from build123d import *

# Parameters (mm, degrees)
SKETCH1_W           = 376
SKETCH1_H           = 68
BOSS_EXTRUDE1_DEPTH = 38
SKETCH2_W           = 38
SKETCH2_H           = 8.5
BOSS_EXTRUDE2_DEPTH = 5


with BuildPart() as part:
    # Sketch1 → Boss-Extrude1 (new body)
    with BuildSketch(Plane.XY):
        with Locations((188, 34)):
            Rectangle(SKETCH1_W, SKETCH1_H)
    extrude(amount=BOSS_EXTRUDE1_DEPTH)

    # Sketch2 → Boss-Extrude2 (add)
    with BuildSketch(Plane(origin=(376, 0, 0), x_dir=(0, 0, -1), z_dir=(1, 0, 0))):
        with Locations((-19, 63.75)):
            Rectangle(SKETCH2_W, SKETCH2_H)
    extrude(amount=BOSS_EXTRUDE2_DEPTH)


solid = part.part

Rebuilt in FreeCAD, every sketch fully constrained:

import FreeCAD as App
import Part
import Sketcher

V = App.Vector
Q = App.Units.Quantity


def add_polygon(sketch, points):
    """Adds a closed chain of lines whose ends are joined by coincident constraints."""
    first, n = sketch.GeometryCount, len(points)
    for a, b in zip(points, points[1:] + points[:1]):
        sketch.addGeometry(Part.LineSegment(App.Vector(*a, 0), App.Vector(*b, 0)), False)
    for i in range(n):
        sketch.addConstraint(Sketcher.Constraint("Coincident", first + i, 2, first + (i + 1) % n, 1))

doc = App.newDocument("Part")
body = doc.addObject("PartDesign::Body", "Body")

# Sketch on XY plane
sketch1 = doc.addObject("Sketcher::SketchObject", "Sketch")
body.addObject(sketch1)
sketch1.AttachmentSupport = (doc.XY_Plane, [""])
sketch1.MapMode = "FlatFace"
add_polygon(sketch1, [(0, 68), (0, 0), (376, 0), (376, 68)])  # lines 0-3
sketch1.addConstraint(Sketcher.Constraint("Vertical", 0))
sketch1.addConstraint(Sketcher.Constraint("Horizontal", 1))
sketch1.addConstraint(Sketcher.Constraint("Vertical", 2))
sketch1.addConstraint(Sketcher.Constraint("Horizontal", 3))
sketch1.addConstraint(Sketcher.Constraint("Coincident", 0, 2, -1, 1))
sketch1.addConstraint(Sketcher.Constraint("DistanceX", 1, 1, 1, 2, Q("376 mm")))
sketch1.addConstraint(Sketcher.Constraint("DistanceY", 0, 2, 0, 1, Q("68 mm")))
pad1 = doc.addObject("PartDesign::Pad", "Pad")
body.addObject(pad1)
pad1.Profile = sketch1
pad1.Length = 38

# Sketch on YZ plane
sketch2 = doc.addObject("Sketcher::SketchObject", "Sketch001")
body.addObject(sketch2)
sketch2.AttachmentSupport = (doc.YZ_Plane, [""])
sketch2.MapMode = "FlatFace"
sketch2.AttachmentOffset = App.Placement(V(0, 0, 376), App.Rotation())
add_polygon(sketch2, [(68, 38), (60, 38), (60, 0), (68, 0)])  # lines 0-3
sketch2.addConstraint(Sketcher.Constraint("Horizontal", 0))
sketch2.addConstraint(Sketcher.Constraint("Vertical", 1))
sketch2.addConstraint(Sketcher.Constraint("Horizontal", 2))
sketch2.addConstraint(Sketcher.Constraint("Vertical", 3))
sketch2.addConstraint(Sketcher.Constraint("PointOnObject", 1, 2, -1))
sketch2.addConstraint(Sketcher.Constraint("DistanceY", 1, 2, 1, 1, Q("38 mm")))
sketch2.addConstraint(Sketcher.Constraint("DistanceX", 0, 2, 0, 1, Q("8.5 mm")))
sketch2.addConstraint(Sketcher.Constraint("DistanceX", -1, 1, 2, 2, Q("68 mm")))
pad2 = doc.addObject("PartDesign::Pad", "Pad001")
body.addObject(pad2)
pad2.Profile = sketch2
pad2.Length = 5

doc.recompute()
